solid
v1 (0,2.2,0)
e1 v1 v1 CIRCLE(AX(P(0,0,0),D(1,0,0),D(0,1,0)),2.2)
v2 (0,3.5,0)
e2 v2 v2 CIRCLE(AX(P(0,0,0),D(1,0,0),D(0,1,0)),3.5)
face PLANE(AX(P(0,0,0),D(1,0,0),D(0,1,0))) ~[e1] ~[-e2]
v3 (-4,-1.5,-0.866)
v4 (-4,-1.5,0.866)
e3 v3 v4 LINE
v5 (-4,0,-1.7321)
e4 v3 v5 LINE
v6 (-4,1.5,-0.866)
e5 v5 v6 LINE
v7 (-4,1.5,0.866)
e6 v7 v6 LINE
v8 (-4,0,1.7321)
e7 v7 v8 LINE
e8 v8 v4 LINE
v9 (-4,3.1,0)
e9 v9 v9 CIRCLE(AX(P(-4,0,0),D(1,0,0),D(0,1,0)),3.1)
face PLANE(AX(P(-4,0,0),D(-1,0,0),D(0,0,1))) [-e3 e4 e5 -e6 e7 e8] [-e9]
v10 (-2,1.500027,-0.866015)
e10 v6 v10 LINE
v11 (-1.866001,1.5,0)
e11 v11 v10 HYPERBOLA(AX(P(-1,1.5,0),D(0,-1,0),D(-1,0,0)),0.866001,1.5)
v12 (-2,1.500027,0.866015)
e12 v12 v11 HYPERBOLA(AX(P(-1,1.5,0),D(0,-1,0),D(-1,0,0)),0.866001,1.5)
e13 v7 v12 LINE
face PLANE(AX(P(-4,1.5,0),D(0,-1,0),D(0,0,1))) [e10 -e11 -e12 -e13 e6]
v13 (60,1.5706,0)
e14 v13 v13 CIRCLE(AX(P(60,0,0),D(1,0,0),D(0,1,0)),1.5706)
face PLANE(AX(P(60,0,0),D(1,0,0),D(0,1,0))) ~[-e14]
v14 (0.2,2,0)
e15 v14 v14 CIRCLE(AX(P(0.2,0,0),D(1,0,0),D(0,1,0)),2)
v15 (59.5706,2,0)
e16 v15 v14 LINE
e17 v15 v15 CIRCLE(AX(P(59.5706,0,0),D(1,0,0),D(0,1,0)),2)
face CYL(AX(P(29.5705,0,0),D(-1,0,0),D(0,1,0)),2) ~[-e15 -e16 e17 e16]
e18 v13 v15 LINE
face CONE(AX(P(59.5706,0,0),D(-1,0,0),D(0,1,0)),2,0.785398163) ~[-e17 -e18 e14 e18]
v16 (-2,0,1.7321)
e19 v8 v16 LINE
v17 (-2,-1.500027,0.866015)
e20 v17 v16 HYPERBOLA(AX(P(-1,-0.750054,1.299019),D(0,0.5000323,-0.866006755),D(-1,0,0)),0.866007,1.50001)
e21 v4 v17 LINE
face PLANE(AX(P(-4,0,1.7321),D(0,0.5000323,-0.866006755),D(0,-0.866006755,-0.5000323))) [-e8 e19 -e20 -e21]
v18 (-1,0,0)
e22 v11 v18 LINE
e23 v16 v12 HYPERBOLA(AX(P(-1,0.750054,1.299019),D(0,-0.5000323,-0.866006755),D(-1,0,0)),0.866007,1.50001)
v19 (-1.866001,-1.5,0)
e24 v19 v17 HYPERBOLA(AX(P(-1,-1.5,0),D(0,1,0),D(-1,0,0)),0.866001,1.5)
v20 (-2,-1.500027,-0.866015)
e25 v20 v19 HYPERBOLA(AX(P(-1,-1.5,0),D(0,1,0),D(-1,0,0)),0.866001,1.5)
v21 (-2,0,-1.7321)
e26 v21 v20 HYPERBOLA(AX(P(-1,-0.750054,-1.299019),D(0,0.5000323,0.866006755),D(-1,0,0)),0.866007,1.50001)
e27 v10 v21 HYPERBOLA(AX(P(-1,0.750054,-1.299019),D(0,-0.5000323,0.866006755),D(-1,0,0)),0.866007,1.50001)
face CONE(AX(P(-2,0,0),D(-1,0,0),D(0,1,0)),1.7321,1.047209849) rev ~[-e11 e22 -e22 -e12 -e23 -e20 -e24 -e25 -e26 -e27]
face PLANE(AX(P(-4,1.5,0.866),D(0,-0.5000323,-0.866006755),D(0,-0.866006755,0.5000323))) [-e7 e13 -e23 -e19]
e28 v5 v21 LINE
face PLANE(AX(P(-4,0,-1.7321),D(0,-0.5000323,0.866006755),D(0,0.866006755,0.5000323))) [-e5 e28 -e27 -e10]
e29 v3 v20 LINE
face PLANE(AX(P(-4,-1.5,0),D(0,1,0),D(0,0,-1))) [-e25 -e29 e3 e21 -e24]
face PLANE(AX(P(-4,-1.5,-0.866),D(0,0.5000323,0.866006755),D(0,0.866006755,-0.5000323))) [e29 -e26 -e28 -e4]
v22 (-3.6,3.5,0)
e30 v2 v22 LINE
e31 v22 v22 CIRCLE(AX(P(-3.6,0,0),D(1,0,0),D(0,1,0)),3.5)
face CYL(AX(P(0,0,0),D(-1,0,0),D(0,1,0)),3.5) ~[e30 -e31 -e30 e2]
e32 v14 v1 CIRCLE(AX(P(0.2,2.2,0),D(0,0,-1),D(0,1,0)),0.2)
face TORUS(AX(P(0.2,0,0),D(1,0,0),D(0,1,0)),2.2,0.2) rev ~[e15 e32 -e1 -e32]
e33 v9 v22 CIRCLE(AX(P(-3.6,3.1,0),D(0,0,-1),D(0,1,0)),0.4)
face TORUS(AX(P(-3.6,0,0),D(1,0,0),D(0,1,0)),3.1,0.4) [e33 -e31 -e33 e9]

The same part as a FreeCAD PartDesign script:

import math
import FreeCAD as App
import Part
import Sketcher


def edges_at(feature, points):
    """Names of the edges that pass closest to the given points."""
    edges = feature.Shape.Edges
    near = lambda p: min(range(len(edges)), key=lambda i: edges[i].distToShape(Part.Vertex(*p))[0])
    return sorted({f"Edge{near(p) + 1}" for p in points})


def add_polygon(sketch, points):
    """Adds a closed chain of lines whose ends are joined by coincident constraints."""
    first, n = sketch.GeometryCount, len(points)
    for a, b in zip(points, points[1:] + points[:1]):
        sketch.addGeometry(Part.LineSegment(App.Vector(*a, 0), App.Vector(*b, 0)), False)
    for i in range(n):
        sketch.addConstraint(Sketcher.Constraint("Coincident", first + i, 2, first + (i + 1) % n, 1))

doc = App.newDocument("Part")
body = doc.addObject("PartDesign::Body", "Body")

sketch1 = body.newObject("Sketcher::SketchObject", "Sketch")
sketch1.AttachmentSupport = (doc.getObject("XY_Plane"), [""])
sketch1.MapMode = "FlatFace"
add_polygon(sketch1, [(-2, 1.7), (-1, 0), (60, 0), (60, 2), (0, 2), (0, 3.5), (-4, 3.5), (-4, 1.7)])
sketch1.addConstraint([
    Sketcher.Constraint("Horizontal", 1),
    Sketcher.Constraint("Vertical", 2),
    Sketcher.Constraint("Horizontal", 3),
    Sketcher.Constraint("Vertical", 4),
    Sketcher.Constraint("Horizontal", 5),
    Sketcher.Constraint("Vertical", 6),
    Sketcher.Constraint("Horizontal", 7),
    Sketcher.Constraint("PointOnObject", 0, 2, -1),
    Sketcher.Constraint("PointOnObject", 3, 2, -2),
    Sketcher.Constraint("Equal", 7, 2),
    Sketcher.Constraint("DistanceX", 3, 2, 3, 1, 60.0),
    Sketcher.Constraint("DistanceX", 5, 2, 5, 1, 4.0),
    Sketcher.Constraint("DistanceX", 7, 1, 7, 2, 2.0),
    Sketcher.Constraint("Distance", 0, 2.0),
    Sketcher.Constraint("DistanceX", 1, 1, 1, 2, 61.0),
    Sketcher.Constraint("DistanceY", 4, 1, 4, 2, 1.5),
])
revolution = body.newObject("PartDesign::Revolution", "Revolution")
revolution.Profile = sketch1
revolution.ReferenceAxis = (sketch1, ["H_Axis"])
revolution.Angle = 360

sketch2 = body.newObject("Sketcher::SketchObject", "Sketch001")
sketch2.AttachmentSupport = (doc.getObject("YZ_Plane"), [""])
sketch2.MapMode = "FlatFace"
sketch2.AttachmentOffset = App.Placement(App.Vector(0, 0, -4), App.Rotation())
sketch2.addGeometry([
    Part.LineSegment(App.Vector(1.5, 0.9, 0), App.Vector(0, 1.7, 0)),
    Part.ArcOfCircle(Part.Circle(App.Vector(0, 0, 0), App.Vector(0, 0, 1), 1.7), math.radians(30), math.radians(90)),
    Part.ArcOfCircle(Part.Circle(App.Vector(0, 0, 0), App.Vector(0, 0, 1), 1.7), math.radians(90), math.radians(150)),
    Part.LineSegment(App.Vector(0, 1.7, 0), App.Vector(-1.5, 0.9, 0)),
    Part.ArcOfCircle(Part.Circle(App.Vector(0, 0, 0), App.Vector(0, 0, 1), 1.7), math.radians(-30), math.radians(30)),
    Part.LineSegment(App.Vector(1.5, 0.9, 0), App.Vector(1.5, -0.9, 0)),
    Part.LineSegment(App.Vector(-1.5, 0.9, 0), App.Vector(-1.5, -0.9, 0)),
    Part.ArcOfCircle(Part.Circle(App.Vector(0, 0, 0), App.Vector(0, 0, 1), 1.7), math.radians(150), math.radians(210)),
    Part.LineSegment(App.Vector(-1.5, -0.9, 0), App.Vector(0, -1.7, 0)),
    Part.ArcOfCircle(Part.Circle(App.Vector(0, 0, 0), App.Vector(0, 0, 1), 1.7), math.radians(-150), math.radians(-90)),
    Part.ArcOfCircle(Part.Circle(App.Vector(0, 0, 0), App.Vector(0, 0, 1), 1.7), math.radians(-90), math.radians(-30)),
    Part.LineSegment(App.Vector(0, -1.7, 0), App.Vector(1.5, -0.9, 0)),
], False)
sketch2.addConstraint([
    Sketcher.Constraint("Coincident", 0, 1, 1, 1),
    Sketcher.Constraint("Coincident", 1, 2, 0, 2),
    Sketcher.Constraint("Coincident", 2, 1, 3, 1),
    Sketcher.Constraint("Coincident", 3, 2, 2, 2),
    Sketcher.Constraint("Coincident", 4, 1, 5, 2),
    Sketcher.Constraint("Coincident", 5, 1, 4, 2),
    Sketcher.Constraint("Coincident", 6, 1, 7, 1),
    Sketcher.Constraint("Coincident", 7, 2, 6, 2),
    Sketcher.Constraint("Coincident", 8, 1, 9, 1),
    Sketcher.Constraint("Coincident", 9, 2, 8, 2),
    Sketcher.Constraint("Coincident", 10, 1, 11, 1),
    Sketcher.Constraint("Coincident", 11, 2, 10, 2),
    Sketcher.Constraint("Vertical", 5),
    Sketcher.Constraint("Vertical", 6),
    Sketcher.Constraint("Coincident", 1, 3, -1, 1),
    Sketcher.Constraint("Coincident", 2, 3, -1, 1),
    Sketcher.Constraint("Coincident", 4, 3, -1, 1),
    Sketcher.Constraint("Coincident", 7, 3, -1, 1),
    Sketcher.Constraint("Coincident", 9, 3, -1, 1),
    Sketcher.Constraint("Coincident", 10, 3, -1, 1),
    Sketcher.Constraint("Coincident", 2, 1, 1, 2),
    Sketcher.Constraint("Coincident", 5, 1, 0, 1),
    Sketcher.Constraint("Coincident", 6, 1, 3, 2),
    Sketcher.Constraint("Coincident", 8, 1, 7, 2),
    Sketcher.Constraint("Coincident", 10, 1, 9, 2),
    Sketcher.Constraint("PointOnObject", 1, 2, -2),
    Sketcher.Constraint("PointOnObject", 9, 2, -2),
    Sketcher.Constraint("Parallel", 0, 8),
    Sketcher.Constraint("Parallel", 3, 11),
    Sketcher.Constraint("Radius", 1, 1.732),
    Sketcher.Constraint("DistanceX", -1, 1, 0, 1, 1.5),
])
pad1 = body.newObject("PartDesign::Pad", "Pad")
pad1.Profile = sketch2
pad1.Type = "UpToFirst"
doc.recompute()

fillet = body.newObject("PartDesign::Fillet", "Fillet")
fillet.Base = (pad1, edges_at(pad1, [(-4, -3.5, 0)]))
fillet.Radius = 0.4
doc.recompute()

chamfer = body.newObject("PartDesign::Chamfer", "Chamfer")
chamfer.Base = (fillet, edges_at(fillet, [(60, -2, 0)]))
chamfer.ChamferType = "Two distances"
chamfer.Size = 0.4294
chamfer.Size2 = 0.4294
doc.recompute()

fillet2 = body.newObject("PartDesign::Fillet", "Fillet001")
fillet2.Base = (chamfer, edges_at(chamfer, [(0, -2, 0)]))
fillet2.Radius = 0.2

doc.recompute()
